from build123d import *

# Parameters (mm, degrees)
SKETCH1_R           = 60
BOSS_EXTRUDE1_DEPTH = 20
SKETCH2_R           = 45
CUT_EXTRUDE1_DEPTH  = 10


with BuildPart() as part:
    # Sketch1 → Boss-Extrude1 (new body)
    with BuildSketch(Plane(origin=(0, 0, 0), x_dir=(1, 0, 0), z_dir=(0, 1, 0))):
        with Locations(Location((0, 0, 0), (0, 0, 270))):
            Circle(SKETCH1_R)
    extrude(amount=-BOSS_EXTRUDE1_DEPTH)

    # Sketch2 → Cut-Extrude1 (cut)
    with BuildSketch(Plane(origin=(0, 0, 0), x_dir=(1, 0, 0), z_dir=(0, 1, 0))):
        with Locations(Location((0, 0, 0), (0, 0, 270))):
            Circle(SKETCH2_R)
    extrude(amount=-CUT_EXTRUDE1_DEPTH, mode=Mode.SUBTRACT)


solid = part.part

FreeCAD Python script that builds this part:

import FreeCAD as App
import Part
import Sketcher
from FreeCAD import Vector
Q = App.Units.Quantity

doc = App.newDocument("Part")
body = doc.addObject("PartDesign::Body", "Body")

# Sketch on XZ plane
sketch1 = body.newObject("Sketcher::SketchObject", "Sketch")
sketch1.AttachmentSupport = (doc.getObject("XZ_Plane"), [""])
sketch1.MapMode = "FlatFace"
sketch1.addGeometry(Part.Circle(Vector(0, 0, 0), Vector(0, 0, 1), 60), False)
sketch1.addConstraint([
    Sketcher.Constraint("Coincident", 0, 3, -1, 1),
    Sketcher.Constraint("Diameter", 0, Q("120 mm")),
])
pad1 = body.newObject("PartDesign::Pad", "Pad")
pad1.Profile = sketch1
pad1.Length = 20

# Sketch on XZ plane
sketch2 = body.newObject("Sketcher::SketchObject", "Sketch001")
sketch2.AttachmentSupport = (doc.getObject("XZ_Plane"), [""])
sketch2.MapMode = "FlatFace"
sketch2.addGeometry(Part.Circle(Vector(0, 0, 0), Vector(0, 0, 1), 45), False)
sketch2.addConstraint([
    Sketcher.Constraint("Coincident", 0, 3, -1, 1),
    Sketcher.Constraint("Diameter", 0, Q("90 mm")),
])
pocket1 = body.newObject("PartDesign::Pocket", "Pocket")
pocket1.Profile = sketch2
pocket1.Length = 10
pocket1.Reversed = True

doc.recompute()
